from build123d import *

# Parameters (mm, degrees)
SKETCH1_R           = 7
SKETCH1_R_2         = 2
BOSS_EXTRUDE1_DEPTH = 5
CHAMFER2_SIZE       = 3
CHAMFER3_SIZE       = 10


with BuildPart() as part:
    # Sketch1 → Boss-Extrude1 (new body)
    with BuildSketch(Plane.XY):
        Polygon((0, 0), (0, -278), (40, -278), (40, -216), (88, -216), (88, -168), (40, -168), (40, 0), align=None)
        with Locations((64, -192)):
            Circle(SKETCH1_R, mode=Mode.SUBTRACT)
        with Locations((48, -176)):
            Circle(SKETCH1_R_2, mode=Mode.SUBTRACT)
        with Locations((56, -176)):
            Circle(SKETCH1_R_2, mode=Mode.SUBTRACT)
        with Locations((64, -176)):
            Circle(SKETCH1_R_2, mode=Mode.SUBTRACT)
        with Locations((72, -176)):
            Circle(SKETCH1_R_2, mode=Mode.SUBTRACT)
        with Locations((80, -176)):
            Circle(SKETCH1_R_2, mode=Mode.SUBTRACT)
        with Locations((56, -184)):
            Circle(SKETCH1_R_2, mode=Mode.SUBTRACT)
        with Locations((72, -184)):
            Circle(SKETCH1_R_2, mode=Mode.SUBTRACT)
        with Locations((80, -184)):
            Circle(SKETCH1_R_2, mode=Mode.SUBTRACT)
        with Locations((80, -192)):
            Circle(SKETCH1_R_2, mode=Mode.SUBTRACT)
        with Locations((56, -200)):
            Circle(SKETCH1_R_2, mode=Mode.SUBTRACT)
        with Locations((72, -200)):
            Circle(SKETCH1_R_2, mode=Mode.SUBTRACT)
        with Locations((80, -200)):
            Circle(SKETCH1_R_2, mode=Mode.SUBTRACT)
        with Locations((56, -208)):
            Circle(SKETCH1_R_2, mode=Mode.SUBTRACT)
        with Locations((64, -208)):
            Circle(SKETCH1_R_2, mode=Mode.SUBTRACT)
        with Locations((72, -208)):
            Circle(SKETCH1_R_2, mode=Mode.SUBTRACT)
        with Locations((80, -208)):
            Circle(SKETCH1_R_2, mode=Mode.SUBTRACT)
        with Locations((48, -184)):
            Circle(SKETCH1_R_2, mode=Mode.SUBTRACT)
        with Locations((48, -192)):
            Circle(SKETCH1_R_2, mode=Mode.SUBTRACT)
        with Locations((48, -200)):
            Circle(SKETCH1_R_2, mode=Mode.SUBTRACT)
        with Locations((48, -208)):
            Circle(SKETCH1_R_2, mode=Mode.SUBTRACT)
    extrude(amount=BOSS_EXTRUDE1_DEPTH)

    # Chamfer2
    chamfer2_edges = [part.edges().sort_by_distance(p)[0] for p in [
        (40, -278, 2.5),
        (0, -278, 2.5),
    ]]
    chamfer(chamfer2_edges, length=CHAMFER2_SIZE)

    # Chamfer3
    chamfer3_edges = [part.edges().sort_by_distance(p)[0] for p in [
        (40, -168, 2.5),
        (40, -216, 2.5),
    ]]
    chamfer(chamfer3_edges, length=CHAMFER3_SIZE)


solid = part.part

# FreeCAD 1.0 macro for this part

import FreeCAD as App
import Part
import Sketcher
from FreeCAD import Vector


def edges_at(feature, points):
    """Names of the edges that pass closest to the given points."""
    edges = feature.Shape.Edges
    near = lambda p: min(range(len(edges)), key=lambda i: edges[i].distToShape(Part.Vertex(*p))[0])
    return sorted({f"Edge{near(p) + 1}" for p in points})

doc = App.newDocument("Part")
body = doc.addObject("PartDesign::Body", "Body")

# Sketch on XY plane
sketch1 = body.newObject("Sketcher::SketchObject", "Sketch")
sketch1.AttachmentSupport = (doc.getObject("XY_Plane"), [""])
sketch1.MapMode = "FlatFace"
sketch1.addGeometry([
    Part.LineSegment(Vector(0, 0, 0), Vector(0, -278, 0)),  # 0
    Part.LineSegment(Vector(0, -278, 0), Vector(40, -278, 0)),  # 1
    Part.LineSegment(Vector(40, -278, 0), Vector(40, -216, 0)),  # 2
    Part.LineSegment(Vector(40, -216, 0), Vector(88, -216, 0)),  # 3
    Part.LineSegment(Vector(88, -216, 0), Vector(88, -168, 0)),  # 4
    Part.LineSegment(Vector(88, -168, 0), Vector(40, -168, 0)),  # 5
    Part.LineSegment(Vector(40, -168, 0), Vector(40, 0, 0)),  # 6
    Part.LineSegment(Vector(40, 0, 0), Vector(0, 0, 0)),  # 7
    Part.Circle(Vector(48, -208, 0), Vector(0, 0, 1), 2),  # 8
    Part.Circle(Vector(56, -208, 0), Vector(0, 0, 1), 2),  # 9
    Part.Circle(Vector(64, -208, 0), Vector(0, 0, 1), 2),  # 10
    Part.Circle(Vector(48, -200, 0), Vector(0, 0, 1), 2),  # 11
    Part.Circle(Vector(56, -200, 0), Vector(0, 0, 1), 2),  # 12
    Part.Circle(Vector(72, -208, 0), Vector(0, 0, 1), 2),  # 13
    Part.Circle(Vector(80, -208, 0), Vector(0, 0, 1), 2),  # 14
    Part.Circle(Vector(72, -200, 0), Vector(0, 0, 1), 2),  # 15
    Part.Circle(Vector(80, -200, 0), Vector(0, 0, 1), 2),  # 16
    Part.Circle(Vector(48, -192, 0), Vector(0, 0, 1), 2),  # 17
    Part.Circle(Vector(48, -184, 0), Vector(0, 0, 1), 2),  # 18
    Part.Circle(Vector(64, -192, 0), Vector(0, 0, 1), 7),  # 19
    Part.Circle(Vector(56, -184, 0), Vector(0, 0, 1), 2),  # 20
    Part.Circle(Vector(48, -176, 0), Vector(0, 0, 1), 2),  # 21
    Part.Circle(Vector(56, -176, 0), Vector(0, 0, 1), 2),  # 22
    Part.Circle(Vector(64, -176, 0), Vector(0, 0, 1), 2),  # 23
    Part.Circle(Vector(72, -184, 0), Vector(0, 0, 1), 2),  # 24
    Part.Circle(Vector(80, -192, 0), Vector(0, 0, 1), 2),  # 25
    Part.Circle(Vector(80, -184, 0), Vector(0, 0, 1), 2),  # 26
    Part.Circle(Vector(72, -176, 0), Vector(0, 0, 1), 2),  # 27
    Part.Circle(Vector(80, -176, 0), Vector(0, 0, 1), 2),  # 28
], False)
sketch1.addConstraint([
    Sketcher.Constraint("Coincident", 0, 2, 1, 1),
    Sketcher.Constraint("Coincident", 1, 2, 2, 1),
    Sketcher.Constraint("Coincident", 2, 2, 3, 1),
    Sketcher.Constraint("Coincident", 3, 2, 4, 1),
    Sketcher.Constraint("Coincident", 4, 2, 5, 1),
    Sketcher.Constraint("Coincident", 5, 2, 6, 1),
    Sketcher.Constraint("Coincident", 6, 2, 7, 1),
    Sketcher.Constraint("Coincident", 7, 2, 0, 1),
    Sketcher.Constraint("Vertical", 0),
    Sketcher.Constraint("Horizontal", 1),
    Sketcher.Constraint("Vertical", 2),
    Sketcher.Constraint("Horizontal", 3),
    Sketcher.Constraint("Vertical", 4),
    Sketcher.Constraint("Horizontal", 5),
    Sketcher.Constraint("Vertical", 6),
    Sketcher.Constraint("Horizontal", 7),
    Sketcher.Constraint("Coincident", 7, 2, -1, 1),
    Sketcher.Constraint("Equal", 8, 9),
    Sketcher.Constraint("Equal", 9, 10),
    Sketcher.Constraint("Equal", 10, 11),
    Sketcher.Constraint("Equal", 11, 12),
    Sketcher.Constraint("Equal", 12, 13),
    Sketcher.Constraint("Equal", 13, 14),
    Sketcher.Constraint("Equal", 14, 15),
    Sketcher.Constraint("Equal", 15, 16),
    Sketcher.Constraint("Equal", 16, 17),
    Sketcher.Constraint("Equal", 17, 18),
    Sketcher.Constraint("Equal", 18, 20),
    Sketcher.Constraint("Equal", 20, 21),
    Sketcher.Constraint("Equal", 21, 22),
    Sketcher.Constraint("Equal", 22, 23),
    Sketcher.Constraint("Equal", 23, 24),
    Sketcher.Constraint("Equal", 24, 25),
    Sketcher.Constraint("Equal", 25, 26),
    Sketcher.Constraint("Equal", 26, 27),
    Sketcher.Constraint("Equal", 27, 28),
    Sketcher.Constraint("Horizontal", 8, 3, 9, 3),
    Sketcher.Constraint("Horizontal", 9, 3, 10, 3),
    Sketcher.Constraint("Horizontal", 11, 3, 12, 3),
    Sketcher.Constraint("Horizontal", 10, 3, 13, 3),
    Sketcher.Constraint("Horizontal", 13, 3, 14, 3),
    Sketcher.Constraint("Horizontal", 12, 3, 15, 3),
    Sketcher.Constraint("Horizontal", 15, 3, 16, 3),
    Sketcher.Constraint("Horizontal", 17, 3, 19, 3),
    Sketcher.Constraint("Horizontal", 18, 3, 20, 3),
    Sketcher.Constraint("Horizontal", 21, 3, 22, 3),
    Sketcher.Constraint("Horizontal", 22, 3, 23, 3),
    Sketcher.Constraint("Horizontal", 20, 3, 24, 3),
    Sketcher.Constraint("Horizontal", 19, 3, 25, 3),
    Sketcher.Constraint("Horizontal", 24, 3, 26, 3),
    Sketcher.Constraint("Horizontal", 23, 3, 27, 3),
    Sketcher.Constraint("Horizontal", 27, 3, 28, 3),
    Sketcher.Constraint("Vertical", 8, 3, 11, 3),
    Sketcher.Constraint("Vertical", 9, 3, 12, 3),
    Sketcher.Constraint("Vertical", 13, 3, 15, 3),
    Sketcher.Constraint("Vertical", 14, 3, 16, 3),
    Sketcher.Constraint("Vertical", 11, 3, 17, 3),
    Sketcher.Constraint("Vertical", 17, 3, 18, 3),
    Sketcher.Constraint("Vertical", 10, 3, 19, 3),
    Sketcher.Constraint("Vertical", 12, 3, 20, 3),
    Sketcher.Constraint("Vertical", 18, 3, 21, 3),
    Sketcher.Constraint("Vertical", 20, 3, 22, 3),
    Sketcher.Constraint("Vertical", 19, 3, 23, 3),
    Sketcher.Constraint("Vertical", 15, 3, 24, 3),
    Sketcher.Constraint("Vertical", 16, 3, 25, 3),
    Sketcher.Constraint("Vertical", 25, 3, 26, 3),
    Sketcher.Constraint("Vertical", 24, 3, 27, 3),
    Sketcher.Constraint("Vertical", 26, 3, 28, 3),
    Sketcher.Constraint("Vertical", 2, 2, 5, 2),
    Sketcher.Constraint("Equal", 5, 4),
    Sketcher.Constraint("Diameter", 8, 4.0),
    Sketcher.Constraint("Diameter", 19, 14.0),
    Sketcher.Constraint("DistanceX", 1, 1, 1, 2, 40.0),
    Sketcher.Constraint("DistanceX", 3, 1, 3, 2, 48.0),
    Sketcher.Constraint("DistanceY", 0, 2, 0, 1, 278.0),
    Sketcher.Constraint("DistanceY", 2, 1, 2, 2, 62.0),
    Sketcher.Constraint("DistanceX", -1, 1, 8, 3, 48.0),
    Sketcher.Constraint("DistanceY", 8, 3, -1, 1, 208.0),
    Sketcher.Constraint("DistanceX", -1, 1, 9, 3, 56.0),
    Sketcher.Constraint("DistanceX", -1, 1, 10, 3, 64.0),
    Sketcher.Constraint("DistanceY", 11, 3, -1, 1, 200.0),
    Sketcher.Constraint("DistanceX", -1, 1, 13, 3, 72.0),
    Sketcher.Constraint("DistanceX", -1, 1, 14, 3, 80.0),
    Sketcher.Constraint("DistanceY", 17, 3, -1, 1, 192.0),
    Sketcher.Constraint("DistanceY", 18, 3, -1, 1, 184.0),
    Sketcher.Constraint("DistanceY", 21, 3, -1, 1, 176.0),
])
pad1 = body.newObject("PartDesign::Pad", "Pad")
pad1.Profile = sketch1
pad1.Length = 5
doc.recompute()

chamfer = body.newObject("PartDesign::Chamfer", "Chamfer")
chamfer.Base = (pad1, edges_at(pad1, [(40, -278, 2.5), (0, -278, 2.5)]))
chamfer.Size = 3
doc.recompute()

chamfer2 = body.newObject("PartDesign::Chamfer", "Chamfer001")
chamfer2.Base = (chamfer, edges_at(chamfer, [(40, -168, 2.5), (40, -216, 2.5)]))
chamfer2.Size = 10

doc.recompute()
